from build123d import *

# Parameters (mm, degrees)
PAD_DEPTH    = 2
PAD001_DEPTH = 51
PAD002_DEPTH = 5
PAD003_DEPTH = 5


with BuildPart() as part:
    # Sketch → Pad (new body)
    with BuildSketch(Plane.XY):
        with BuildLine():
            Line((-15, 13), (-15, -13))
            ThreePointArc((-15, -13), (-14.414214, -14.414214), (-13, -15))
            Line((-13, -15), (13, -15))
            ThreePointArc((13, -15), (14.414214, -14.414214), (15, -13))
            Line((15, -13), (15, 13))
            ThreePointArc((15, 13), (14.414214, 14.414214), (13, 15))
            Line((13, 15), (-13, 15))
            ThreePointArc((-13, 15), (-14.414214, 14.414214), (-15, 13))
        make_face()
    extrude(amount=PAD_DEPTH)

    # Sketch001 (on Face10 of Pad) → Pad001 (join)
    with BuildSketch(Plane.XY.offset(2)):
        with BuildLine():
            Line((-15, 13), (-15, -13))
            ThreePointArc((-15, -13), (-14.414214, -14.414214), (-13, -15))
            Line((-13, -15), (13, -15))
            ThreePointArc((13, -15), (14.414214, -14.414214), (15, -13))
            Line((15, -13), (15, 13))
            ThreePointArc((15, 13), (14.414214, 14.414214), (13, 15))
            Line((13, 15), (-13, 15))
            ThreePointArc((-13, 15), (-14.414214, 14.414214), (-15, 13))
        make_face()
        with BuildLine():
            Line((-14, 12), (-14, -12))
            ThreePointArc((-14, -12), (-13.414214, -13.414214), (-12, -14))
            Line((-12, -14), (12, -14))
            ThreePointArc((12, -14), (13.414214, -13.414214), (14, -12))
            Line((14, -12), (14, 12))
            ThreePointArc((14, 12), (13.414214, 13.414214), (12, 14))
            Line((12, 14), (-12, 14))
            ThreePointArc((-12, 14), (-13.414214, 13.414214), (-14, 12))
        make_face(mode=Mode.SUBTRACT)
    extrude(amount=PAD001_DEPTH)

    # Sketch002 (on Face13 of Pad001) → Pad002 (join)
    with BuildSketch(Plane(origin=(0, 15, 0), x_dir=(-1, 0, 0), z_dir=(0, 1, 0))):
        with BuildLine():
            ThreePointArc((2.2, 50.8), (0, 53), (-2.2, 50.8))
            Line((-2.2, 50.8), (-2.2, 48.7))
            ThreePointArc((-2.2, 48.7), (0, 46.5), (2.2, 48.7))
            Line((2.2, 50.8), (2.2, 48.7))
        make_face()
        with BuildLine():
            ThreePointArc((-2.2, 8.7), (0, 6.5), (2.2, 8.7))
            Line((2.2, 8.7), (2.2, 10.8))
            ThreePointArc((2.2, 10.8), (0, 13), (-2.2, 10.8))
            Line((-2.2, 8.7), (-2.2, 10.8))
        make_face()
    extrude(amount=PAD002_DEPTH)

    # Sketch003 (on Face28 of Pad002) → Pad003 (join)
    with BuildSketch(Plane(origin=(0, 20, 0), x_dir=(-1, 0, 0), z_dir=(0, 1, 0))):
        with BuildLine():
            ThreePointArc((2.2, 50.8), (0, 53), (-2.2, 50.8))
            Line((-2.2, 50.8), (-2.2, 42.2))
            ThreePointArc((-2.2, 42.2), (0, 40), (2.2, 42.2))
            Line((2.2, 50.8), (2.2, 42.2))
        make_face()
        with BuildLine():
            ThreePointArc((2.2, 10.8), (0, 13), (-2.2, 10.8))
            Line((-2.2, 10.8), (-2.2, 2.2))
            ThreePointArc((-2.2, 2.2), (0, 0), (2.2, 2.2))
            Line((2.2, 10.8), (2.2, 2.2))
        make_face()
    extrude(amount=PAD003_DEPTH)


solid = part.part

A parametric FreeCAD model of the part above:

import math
import FreeCAD as App
import Part
import Sketcher
from FreeCAD import Vector

doc = App.newDocument("Part")
body = doc.addObject("PartDesign::Body", "Body")

# Sketch on XY plane
sketch1 = doc.addObject("Sketcher::SketchObject", "Sketch")
body.addObject(sketch1)
sketch1.AttachmentSupport = (doc.XY_Plane, [""])
sketch1.MapMode = "FlatFace"
sketch1.addGeometry(Part.LineSegment(Vector(-15, 13, 0), Vector(-15, -13, 0)), False)
sketch1.addGeometry(Part.ArcOfCircle(Part.Circle(Vector(-13, -13, 0), Vector(0, 0, 1), 2), math.radians(180), math.radians(270)), False)
sketch1.addGeometry(Part.LineSegment(Vector(-13, -15, 0), Vector(13, -15, 0)), False)
sketch1.addGeometry(Part.ArcOfCircle(Part.Circle(Vector(13, -13, 0), Vector(0, 0, 1), 2), math.radians(-90), math.radians(0)), False)
sketch1.addGeometry(Part.LineSegment(Vector(15, -13, 0), Vector(15, 13, 0)), False)
sketch1.addGeometry(Part.ArcOfCircle(Part.Circle(Vector(13, 13, 0), Vector(0, 0, 1), 2), math.radians(0), math.radians(90)), False)
sketch1.addGeometry(Part.LineSegment(Vector(13, 15, 0), Vector(-13, 15, 0)), False)
sketch1.addGeometry(Part.ArcOfCircle(Part.Circle(Vector(-13, 13, 0), Vector(0, 0, 1), 2), math.radians(90), math.radians(180)), False)
sketch1.addConstraint(Sketcher.Constraint("Tangent", 0, 2, 1, 1))
sketch1.addConstraint(Sketcher.Constraint("Tangent", 1, 2, 2, 1))
sketch1.addConstraint(Sketcher.Constraint("Tangent", 2, 2, 3, 1))
sketch1.addConstraint(Sketcher.Constraint("Tangent", 3, 2, 4, 1))
sketch1.addConstraint(Sketcher.Constraint("Tangent", 4, 2, 5, 1))
sketch1.addConstraint(Sketcher.Constraint("Tangent", 5, 2, 6, 1))
sketch1.addConstraint(Sketcher.Constraint("Tangent", 6, 2, 7, 1))
sketch1.addConstraint(Sketcher.Constraint("Tangent", 7, 2, 0, 1))
sketch1.addConstraint(Sketcher.Constraint("Vertical", 0))
sketch1.addConstraint(Sketcher.Constraint("Horizontal", 2))
sketch1.addConstraint(Sketcher.Constraint("Vertical", 4))
sketch1.addConstraint(Sketcher.Constraint("Horizontal", 6))
sketch1.addConstraint(Sketcher.Constraint("Equal", 1, 3))
sketch1.addConstraint(Sketcher.Constraint("Equal", 3, 5))
sketch1.addConstraint(Sketcher.Constraint("Equal", 5, 7))
sketch1.addConstraint(Sketcher.Constraint("Symmetric", 1, 3, 5, 3, -1, 1))
sketch1.addConstraint(Sketcher.Constraint("Equal", 6, 0))
sketch1.addConstraint(Sketcher.Constraint("Radius", 1, 1.999999))
sketch1.addConstraint(Sketcher.Constraint("DistanceX", 2, 1, 2, 2, 26.0))
pad1 = doc.addObject("PartDesign::Pad", "Pad")
body.addObject(pad1)
pad1.Profile = sketch1
pad1.Length = 2

# Sketch on XY plane
sketch2 = doc.addObject("Sketcher::SketchObject", "Sketch001")
body.addObject(sketch2)
sketch2.AttachmentSupport = (doc.XY_Plane, [""])
sketch2.MapMode = "FlatFace"
sketch2.AttachmentOffset = App.Placement(Vector(0, 0, 2), App.Rotation())
sketch2.addGeometry(Part.LineSegment(Vector(-15, 13, 0), Vector(-15, -13, 0)), False)
sketch2.addGeometry(Part.ArcOfCircle(Part.Circle(Vector(-13, -13, 0), Vector(0, 0, 1), 2), math.radians(180), math.radians(270)), False)
sketch2.addGeometry(Part.LineSegment(Vector(-13, -15, 0), Vector(13, -15, 0)), False)
sketch2.addGeometry(Part.ArcOfCircle(Part.Circle(Vector(13, -13, 0), Vector(0, 0, 1), 2), math.radians(-90), math.radians(0)), False)
sketch2.addGeometry(Part.LineSegment(Vector(15, -13, 0), Vector(15, 13, 0)), False)
sketch2.addGeometry(Part.ArcOfCircle(Part.Circle(Vector(13, 13, 0), Vector(0, 0, 1), 2), math.radians(0), math.radians(90)), False)
sketch2.addGeometry(Part.LineSegment(Vector(13, 15, 0), Vector(-13, 15, 0)), False)
sketch2.addGeometry(Part.ArcOfCircle(Part.Circle(Vector(-13, 13, 0), Vector(0, 0, 1), 2), math.radians(90), math.radians(180)), False)
sketch2.addGeometry(Part.LineSegment(Vector(-14, -12, 0), Vector(-14, 12, 0)), False)
sketch2.addGeometry(Part.ArcOfCircle(Part.Circle(Vector(-12, 12, 0), Vector(0, 0, 1), 2), math.radians(90), math.radians(180)), False)
sketch2.addGeometry(Part.LineSegment(Vector(-12, 14, 0), Vector(12, 14, 0)), False)
sketch2.addGeometry(Part.ArcOfCircle(Part.Circle(Vector(12, 12, 0), Vector(0, 0, 1), 2), math.radians(0), math.radians(90)), False)
sketch2.addGeometry(Part.LineSegment(Vector(14, 12, 0), Vector(14, -12, 0)), False)
sketch2.addGeometry(Part.ArcOfCircle(Part.Circle(Vector(12, -12, 0), Vector(0, 0, 1), 2), math.radians(-90), math.radians(0)), False)
sketch2.addGeometry(Part.LineSegment(Vector(12, -14, 0), Vector(-12, -14, 0)), False)
sketch2.addGeometry(Part.ArcOfCircle(Part.Circle(Vector(-12, -12, 0), Vector(0, 0, 1), 2), math.radians(180), math.radians(270)), False)
sketch2.addConstraint(Sketcher.Constraint("Tangent", 0, 2, 1, 1))
sketch2.addConstraint(Sketcher.Constraint("Tangent", 1, 2, 2, 1))
sketch2.addConstraint(Sketcher.Constraint("Tangent", 2, 2, 3, 1))
sketch2.addConstraint(Sketcher.Constraint("Tangent", 3, 2, 4, 1))
sketch2.addConstraint(Sketcher.Constraint("Tangent", 4, 2, 5, 1))
sketch2.addConstraint(Sketcher.Constraint("Tangent", 5, 2, 6, 1))
sketch2.addConstraint(Sketcher.Constraint("Tangent", 6, 2, 7, 1))
sketch2.addConstraint(Sketcher.Constraint("Tangent", 7, 2, 0, 1))
sketch2.addConstraint(Sketcher.Constraint("Tangent", 8, 2, 9, 2))
sketch2.addConstraint(Sketcher.Constraint("Tangent", 9, 1, 10, 1))
sketch2.addConstraint(Sketcher.Constraint("Tangent", 10, 2, 11, 2))
sketch2.addConstraint(Sketcher.Constraint("Tangent", 11, 1, 12, 1))
sketch2.addConstraint(Sketcher.Constraint("Tangent", 12, 2, 13, 2))
sketch2.addConstraint(Sketcher.Constraint("Tangent", 13, 1, 14, 1))
sketch2.addConstraint(Sketcher.Constraint("Tangent", 14, 2, 15, 2))
sketch2.addConstraint(Sketcher.Constraint("Tangent", 15, 1, 8, 1))
sketch2.addConstraint(Sketcher.Constraint("Vertical", 0))
sketch2.addConstraint(Sketcher.Constraint("Horizontal", 2))
sketch2.addConstraint(Sketcher.Constraint("Vertical", 4))
sketch2.addConstraint(Sketcher.Constraint("Horizontal", 6))
sketch2.addConstraint(Sketcher.Constraint("Vertical", 8))
sketch2.addConstraint(Sketcher.Constraint("Horizontal", 10))
sketch2.addConstraint(Sketcher.Constraint("Vertical", 12))
sketch2.addConstraint(Sketcher.Constraint("Horizontal", 14))
sketch2.addConstraint(Sketcher.Constraint("Equal", 1, 3))
sketch2.addConstraint(Sketcher.Constraint("Equal", 3, 5))
sketch2.addConstraint(Sketcher.Constraint("Equal", 5, 7))
sketch2.addConstraint(Sketcher.Constraint("Equal", 7, 9))
sketch2.addConstraint(Sketcher.Constraint("Equal", 9, 11))
sketch2.addConstraint(Sketcher.Constraint("Equal", 11, 13))
sketch2.addConstraint(Sketcher.Constraint("Equal", 13, 15))
sketch2.addConstraint(Sketcher.Constraint("Symmetric", 1, 3, 5, 3, -1, 1))
sketch2.addConstraint(Sketcher.Constraint("Symmetric", 9, 3, 13, 3, -1, 1))
sketch2.addConstraint(Sketcher.Constraint("Equal", 6, 0))
sketch2.addConstraint(Sketcher.Constraint("Equal", 14, 8))
sketch2.addConstraint(Sketcher.Constraint("Radius", 1, 1.999999))
sketch2.addConstraint(Sketcher.Constraint("DistanceX", 2, 1, 2, 2, 26.0))
sketch2.addConstraint(Sketcher.Constraint("DistanceX", 10, 1, 10, 2, 24.0))
pad2 = doc.addObject("PartDesign::Pad", "Pad001")
body.addObject(pad2)
pad2.Profile = sketch2
pad2.Length = 51

# Sketch on XZ plane
sketch3 = doc.addObject("Sketcher::SketchObject", "Sketch002")
body.addObject(sketch3)
sketch3.AttachmentSupport = (doc.XZ_Plane, [""])
sketch3.MapMode = "FlatFace"
sketch3.AttachmentOffset = App.Placement(Vector(0, 0, -15), App.Rotation())
sketch3.addGeometry(Part.ArcOfCircle(Part.Circle(Vector(0, 50.8, 0), Vector(0, 0, 1), 2.2), math.radians(0), math.radians(180)), False)
sketch3.addGeometry(Part.LineSegment(Vector(2.2, 50.8, 0), Vector(2.2, 48.7, 0)), False)
sketch3.addGeometry(Part.ArcOfCircle(Part.Circle(Vector(0, 48.7, 0), Vector(0, 0, 1), 2.2), math.radians(180), math.radians(360)), False)
sketch3.addGeometry(Part.LineSegment(Vector(-2.2, 48.7, 0), Vector(-2.2, 50.8, 0)), False)
sketch3.addGeometry(Part.ArcOfCircle(Part.Circle(Vector(0, 8.7, 0), Vector(0, 0, 1), 2.2), math.radians(180), math.radians(360)), False)
sketch3.addGeometry(Part.LineSegment(Vector(-2.2, 8.7, 0), Vector(-2.2, 10.8, 0)), False)
sketch3.addGeometry(Part.ArcOfCircle(Part.Circle(Vector(0, 10.8, 0), Vector(0, 0, 1), 2.2), math.radians(0), math.radians(180)), False)
sketch3.addGeometry(Part.LineSegment(Vector(2.2, 10.8, 0), Vector(2.2, 8.7, 0)), False)
sketch3.addConstraint(Sketcher.Constraint("Tangent", 0, 1, 1, 1))
sketch3.addConstraint(Sketcher.Constraint("Tangent", 1, 2, 2, 2))
sketch3.addConstraint(Sketcher.Constraint("Tangent", 2, 1, 3, 1))
sketch3.addConstraint(Sketcher.Constraint("Tangent", 3, 2, 0, 2))
sketch3.addConstraint(Sketcher.Constraint("Tangent", 4, 1, 5, 1))
sketch3.addConstraint(Sketcher.Constraint("Tangent", 5, 2, 6, 2))
sketch3.addConstraint(Sketcher.Constraint("Tangent", 6, 1, 7, 1))
sketch3.addConstraint(Sketcher.Constraint("Tangent", 7, 2, 4, 2))
sketch3.addConstraint(Sketcher.Constraint("Vertical", 1))
sketch3.addConstraint(Sketcher.Constraint("Vertical", 3))
sketch3.addConstraint(Sketcher.Constraint("Vertical", 5))
sketch3.addConstraint(Sketcher.Constraint("Vertical", 7))
sketch3.addConstraint(Sketcher.Constraint("Equal", 2, 4))
sketch3.addConstraint(Sketcher.Constraint("PointOnObject", 0, 3, -2))
sketch3.addConstraint(Sketcher.Constraint("PointOnObject", 4, 3, -2))
sketch3.addConstraint(Sketcher.Constraint("Equal", 3, 5))
sketch3.addConstraint(Sketcher.Constraint("Radius", 0, 2.2))
sketch3.addConstraint(Sketcher.Constraint("DistanceY", 1, 2, 1, 1, 2.1))
sketch3.addConstraint(Sketcher.Constraint("DistanceY", 4, 3, 2, 3, 40.0))
sketch3.addConstraint(Sketcher.Constraint("DistanceY", -1, 1, 0, 3, 50.8))
pad3 = doc.addObject("PartDesign::Pad", "Pad002")
body.addObject(pad3)
pad3.Profile = sketch3
pad3.Length = 5
pad3.Reversed = True

# Sketch on XZ plane
sketch4 = doc.addObject("Sketcher::SketchObject", "Sketch003")
body.addObject(sketch4)
sketch4.AttachmentSupport = (doc.XZ_Plane, [""])
sketch4.MapMode = "FlatFace"
sketch4.AttachmentOffset = App.Placement(Vector(0, 0, -20), App.Rotation())
sketch4.addGeometry(Part.ArcOfCircle(Part.Circle(Vector(0, 50.8, 0), Vector(0, 0, 1), 2.2), math.radians(0), math.radians(180)), False)
sketch4.addGeometry(Part.LineSegment(Vector(2.2, 50.8, 0), Vector(2.2, 42.2, 0)), False)
sketch4.addGeometry(Part.ArcOfCircle(Part.Circle(Vector(0, 42.2, 0), Vector(0, 0, 1), 2.2), math.radians(180), math.radians(360)), False)
sketch4.addGeometry(Part.LineSegment(Vector(-2.2, 42.2, 0), Vector(-2.2, 50.8, 0)), False)
sketch4.addGeometry(Part.ArcOfCircle(Part.Circle(Vector(0, 10.8, 0), Vector(0, 0, 1), 2.2), math.radians(0), math.radians(180)), False)
sketch4.addGeometry(Part.LineSegment(Vector(2.2, 10.8, 0), Vector(2.2, 2.2, 0)), False)
sketch4.addGeometry(Part.ArcOfCircle(Part.Circle(Vector(0, 2.2, 0), Vector(0, 0, 1), 2.2), math.radians(180), math.radians(360)), False)
sketch4.addGeometry(Part.LineSegment(Vector(-2.2, 2.2, 0), Vector(-2.2, 10.8, 0)), False)
sketch4.addConstraint(Sketcher.Constraint("Tangent", 0, 1, 1, 1))
sketch4.addConstraint(Sketcher.Constraint("Tangent", 1, 2, 2, 2))
sketch4.addConstraint(Sketcher.Constraint("Tangent", 2, 1, 3, 1))
sketch4.addConstraint(Sketcher.Constraint("Tangent", 3, 2, 0, 2))
sketch4.addConstraint(Sketcher.Constraint("Tangent", 4, 1, 5, 1))
sketch4.addConstraint(Sketcher.Constraint("Tangent", 5, 2, 6, 2))
sketch4.addConstraint(Sketcher.Constraint("Tangent", 6, 1, 7, 1))
sketch4.addConstraint(Sketcher.Constraint("Tangent", 7, 2, 4, 2))
sketch4.addConstraint(Sketcher.Constraint("Vertical", 1))
sketch4.addConstraint(Sketcher.Constraint("Vertical", 3))
sketch4.addConstraint(Sketcher.Constraint("Vertical", 5))
sketch4.addConstraint(Sketcher.Constraint("Vertical", 7))
sketch4.addConstraint(Sketcher.Constraint("Equal", 2, 4))
sketch4.addConstraint(Sketcher.Constraint("PointOnObject", 0, 3, -2))
sketch4.addConstraint(Sketcher.Constraint("PointOnObject", 4, 3, -2))
sketch4.addConstraint(Sketcher.Constraint("Equal", 3, 5))
sketch4.addConstraint(Sketcher.Constraint("Radius", 0, 2.2))
sketch4.addConstraint(Sketcher.Constraint("DistanceY", 1, 2, 1, 1, 8.6))
sketch4.addConstraint(Sketcher.Constraint("DistanceY", 4, 3, 0, 3, 40.0))
sketch4.addConstraint(Sketcher.Constraint("DistanceY", -1, 1, 0, 3, 50.8))
pad4 = doc.addObject("PartDesign::Pad", "Pad003")
body.addObject(pad4)
pad4.Profile = sketch4
pad4.Length = 5
pad4.Reversed = True

doc.recompute()
